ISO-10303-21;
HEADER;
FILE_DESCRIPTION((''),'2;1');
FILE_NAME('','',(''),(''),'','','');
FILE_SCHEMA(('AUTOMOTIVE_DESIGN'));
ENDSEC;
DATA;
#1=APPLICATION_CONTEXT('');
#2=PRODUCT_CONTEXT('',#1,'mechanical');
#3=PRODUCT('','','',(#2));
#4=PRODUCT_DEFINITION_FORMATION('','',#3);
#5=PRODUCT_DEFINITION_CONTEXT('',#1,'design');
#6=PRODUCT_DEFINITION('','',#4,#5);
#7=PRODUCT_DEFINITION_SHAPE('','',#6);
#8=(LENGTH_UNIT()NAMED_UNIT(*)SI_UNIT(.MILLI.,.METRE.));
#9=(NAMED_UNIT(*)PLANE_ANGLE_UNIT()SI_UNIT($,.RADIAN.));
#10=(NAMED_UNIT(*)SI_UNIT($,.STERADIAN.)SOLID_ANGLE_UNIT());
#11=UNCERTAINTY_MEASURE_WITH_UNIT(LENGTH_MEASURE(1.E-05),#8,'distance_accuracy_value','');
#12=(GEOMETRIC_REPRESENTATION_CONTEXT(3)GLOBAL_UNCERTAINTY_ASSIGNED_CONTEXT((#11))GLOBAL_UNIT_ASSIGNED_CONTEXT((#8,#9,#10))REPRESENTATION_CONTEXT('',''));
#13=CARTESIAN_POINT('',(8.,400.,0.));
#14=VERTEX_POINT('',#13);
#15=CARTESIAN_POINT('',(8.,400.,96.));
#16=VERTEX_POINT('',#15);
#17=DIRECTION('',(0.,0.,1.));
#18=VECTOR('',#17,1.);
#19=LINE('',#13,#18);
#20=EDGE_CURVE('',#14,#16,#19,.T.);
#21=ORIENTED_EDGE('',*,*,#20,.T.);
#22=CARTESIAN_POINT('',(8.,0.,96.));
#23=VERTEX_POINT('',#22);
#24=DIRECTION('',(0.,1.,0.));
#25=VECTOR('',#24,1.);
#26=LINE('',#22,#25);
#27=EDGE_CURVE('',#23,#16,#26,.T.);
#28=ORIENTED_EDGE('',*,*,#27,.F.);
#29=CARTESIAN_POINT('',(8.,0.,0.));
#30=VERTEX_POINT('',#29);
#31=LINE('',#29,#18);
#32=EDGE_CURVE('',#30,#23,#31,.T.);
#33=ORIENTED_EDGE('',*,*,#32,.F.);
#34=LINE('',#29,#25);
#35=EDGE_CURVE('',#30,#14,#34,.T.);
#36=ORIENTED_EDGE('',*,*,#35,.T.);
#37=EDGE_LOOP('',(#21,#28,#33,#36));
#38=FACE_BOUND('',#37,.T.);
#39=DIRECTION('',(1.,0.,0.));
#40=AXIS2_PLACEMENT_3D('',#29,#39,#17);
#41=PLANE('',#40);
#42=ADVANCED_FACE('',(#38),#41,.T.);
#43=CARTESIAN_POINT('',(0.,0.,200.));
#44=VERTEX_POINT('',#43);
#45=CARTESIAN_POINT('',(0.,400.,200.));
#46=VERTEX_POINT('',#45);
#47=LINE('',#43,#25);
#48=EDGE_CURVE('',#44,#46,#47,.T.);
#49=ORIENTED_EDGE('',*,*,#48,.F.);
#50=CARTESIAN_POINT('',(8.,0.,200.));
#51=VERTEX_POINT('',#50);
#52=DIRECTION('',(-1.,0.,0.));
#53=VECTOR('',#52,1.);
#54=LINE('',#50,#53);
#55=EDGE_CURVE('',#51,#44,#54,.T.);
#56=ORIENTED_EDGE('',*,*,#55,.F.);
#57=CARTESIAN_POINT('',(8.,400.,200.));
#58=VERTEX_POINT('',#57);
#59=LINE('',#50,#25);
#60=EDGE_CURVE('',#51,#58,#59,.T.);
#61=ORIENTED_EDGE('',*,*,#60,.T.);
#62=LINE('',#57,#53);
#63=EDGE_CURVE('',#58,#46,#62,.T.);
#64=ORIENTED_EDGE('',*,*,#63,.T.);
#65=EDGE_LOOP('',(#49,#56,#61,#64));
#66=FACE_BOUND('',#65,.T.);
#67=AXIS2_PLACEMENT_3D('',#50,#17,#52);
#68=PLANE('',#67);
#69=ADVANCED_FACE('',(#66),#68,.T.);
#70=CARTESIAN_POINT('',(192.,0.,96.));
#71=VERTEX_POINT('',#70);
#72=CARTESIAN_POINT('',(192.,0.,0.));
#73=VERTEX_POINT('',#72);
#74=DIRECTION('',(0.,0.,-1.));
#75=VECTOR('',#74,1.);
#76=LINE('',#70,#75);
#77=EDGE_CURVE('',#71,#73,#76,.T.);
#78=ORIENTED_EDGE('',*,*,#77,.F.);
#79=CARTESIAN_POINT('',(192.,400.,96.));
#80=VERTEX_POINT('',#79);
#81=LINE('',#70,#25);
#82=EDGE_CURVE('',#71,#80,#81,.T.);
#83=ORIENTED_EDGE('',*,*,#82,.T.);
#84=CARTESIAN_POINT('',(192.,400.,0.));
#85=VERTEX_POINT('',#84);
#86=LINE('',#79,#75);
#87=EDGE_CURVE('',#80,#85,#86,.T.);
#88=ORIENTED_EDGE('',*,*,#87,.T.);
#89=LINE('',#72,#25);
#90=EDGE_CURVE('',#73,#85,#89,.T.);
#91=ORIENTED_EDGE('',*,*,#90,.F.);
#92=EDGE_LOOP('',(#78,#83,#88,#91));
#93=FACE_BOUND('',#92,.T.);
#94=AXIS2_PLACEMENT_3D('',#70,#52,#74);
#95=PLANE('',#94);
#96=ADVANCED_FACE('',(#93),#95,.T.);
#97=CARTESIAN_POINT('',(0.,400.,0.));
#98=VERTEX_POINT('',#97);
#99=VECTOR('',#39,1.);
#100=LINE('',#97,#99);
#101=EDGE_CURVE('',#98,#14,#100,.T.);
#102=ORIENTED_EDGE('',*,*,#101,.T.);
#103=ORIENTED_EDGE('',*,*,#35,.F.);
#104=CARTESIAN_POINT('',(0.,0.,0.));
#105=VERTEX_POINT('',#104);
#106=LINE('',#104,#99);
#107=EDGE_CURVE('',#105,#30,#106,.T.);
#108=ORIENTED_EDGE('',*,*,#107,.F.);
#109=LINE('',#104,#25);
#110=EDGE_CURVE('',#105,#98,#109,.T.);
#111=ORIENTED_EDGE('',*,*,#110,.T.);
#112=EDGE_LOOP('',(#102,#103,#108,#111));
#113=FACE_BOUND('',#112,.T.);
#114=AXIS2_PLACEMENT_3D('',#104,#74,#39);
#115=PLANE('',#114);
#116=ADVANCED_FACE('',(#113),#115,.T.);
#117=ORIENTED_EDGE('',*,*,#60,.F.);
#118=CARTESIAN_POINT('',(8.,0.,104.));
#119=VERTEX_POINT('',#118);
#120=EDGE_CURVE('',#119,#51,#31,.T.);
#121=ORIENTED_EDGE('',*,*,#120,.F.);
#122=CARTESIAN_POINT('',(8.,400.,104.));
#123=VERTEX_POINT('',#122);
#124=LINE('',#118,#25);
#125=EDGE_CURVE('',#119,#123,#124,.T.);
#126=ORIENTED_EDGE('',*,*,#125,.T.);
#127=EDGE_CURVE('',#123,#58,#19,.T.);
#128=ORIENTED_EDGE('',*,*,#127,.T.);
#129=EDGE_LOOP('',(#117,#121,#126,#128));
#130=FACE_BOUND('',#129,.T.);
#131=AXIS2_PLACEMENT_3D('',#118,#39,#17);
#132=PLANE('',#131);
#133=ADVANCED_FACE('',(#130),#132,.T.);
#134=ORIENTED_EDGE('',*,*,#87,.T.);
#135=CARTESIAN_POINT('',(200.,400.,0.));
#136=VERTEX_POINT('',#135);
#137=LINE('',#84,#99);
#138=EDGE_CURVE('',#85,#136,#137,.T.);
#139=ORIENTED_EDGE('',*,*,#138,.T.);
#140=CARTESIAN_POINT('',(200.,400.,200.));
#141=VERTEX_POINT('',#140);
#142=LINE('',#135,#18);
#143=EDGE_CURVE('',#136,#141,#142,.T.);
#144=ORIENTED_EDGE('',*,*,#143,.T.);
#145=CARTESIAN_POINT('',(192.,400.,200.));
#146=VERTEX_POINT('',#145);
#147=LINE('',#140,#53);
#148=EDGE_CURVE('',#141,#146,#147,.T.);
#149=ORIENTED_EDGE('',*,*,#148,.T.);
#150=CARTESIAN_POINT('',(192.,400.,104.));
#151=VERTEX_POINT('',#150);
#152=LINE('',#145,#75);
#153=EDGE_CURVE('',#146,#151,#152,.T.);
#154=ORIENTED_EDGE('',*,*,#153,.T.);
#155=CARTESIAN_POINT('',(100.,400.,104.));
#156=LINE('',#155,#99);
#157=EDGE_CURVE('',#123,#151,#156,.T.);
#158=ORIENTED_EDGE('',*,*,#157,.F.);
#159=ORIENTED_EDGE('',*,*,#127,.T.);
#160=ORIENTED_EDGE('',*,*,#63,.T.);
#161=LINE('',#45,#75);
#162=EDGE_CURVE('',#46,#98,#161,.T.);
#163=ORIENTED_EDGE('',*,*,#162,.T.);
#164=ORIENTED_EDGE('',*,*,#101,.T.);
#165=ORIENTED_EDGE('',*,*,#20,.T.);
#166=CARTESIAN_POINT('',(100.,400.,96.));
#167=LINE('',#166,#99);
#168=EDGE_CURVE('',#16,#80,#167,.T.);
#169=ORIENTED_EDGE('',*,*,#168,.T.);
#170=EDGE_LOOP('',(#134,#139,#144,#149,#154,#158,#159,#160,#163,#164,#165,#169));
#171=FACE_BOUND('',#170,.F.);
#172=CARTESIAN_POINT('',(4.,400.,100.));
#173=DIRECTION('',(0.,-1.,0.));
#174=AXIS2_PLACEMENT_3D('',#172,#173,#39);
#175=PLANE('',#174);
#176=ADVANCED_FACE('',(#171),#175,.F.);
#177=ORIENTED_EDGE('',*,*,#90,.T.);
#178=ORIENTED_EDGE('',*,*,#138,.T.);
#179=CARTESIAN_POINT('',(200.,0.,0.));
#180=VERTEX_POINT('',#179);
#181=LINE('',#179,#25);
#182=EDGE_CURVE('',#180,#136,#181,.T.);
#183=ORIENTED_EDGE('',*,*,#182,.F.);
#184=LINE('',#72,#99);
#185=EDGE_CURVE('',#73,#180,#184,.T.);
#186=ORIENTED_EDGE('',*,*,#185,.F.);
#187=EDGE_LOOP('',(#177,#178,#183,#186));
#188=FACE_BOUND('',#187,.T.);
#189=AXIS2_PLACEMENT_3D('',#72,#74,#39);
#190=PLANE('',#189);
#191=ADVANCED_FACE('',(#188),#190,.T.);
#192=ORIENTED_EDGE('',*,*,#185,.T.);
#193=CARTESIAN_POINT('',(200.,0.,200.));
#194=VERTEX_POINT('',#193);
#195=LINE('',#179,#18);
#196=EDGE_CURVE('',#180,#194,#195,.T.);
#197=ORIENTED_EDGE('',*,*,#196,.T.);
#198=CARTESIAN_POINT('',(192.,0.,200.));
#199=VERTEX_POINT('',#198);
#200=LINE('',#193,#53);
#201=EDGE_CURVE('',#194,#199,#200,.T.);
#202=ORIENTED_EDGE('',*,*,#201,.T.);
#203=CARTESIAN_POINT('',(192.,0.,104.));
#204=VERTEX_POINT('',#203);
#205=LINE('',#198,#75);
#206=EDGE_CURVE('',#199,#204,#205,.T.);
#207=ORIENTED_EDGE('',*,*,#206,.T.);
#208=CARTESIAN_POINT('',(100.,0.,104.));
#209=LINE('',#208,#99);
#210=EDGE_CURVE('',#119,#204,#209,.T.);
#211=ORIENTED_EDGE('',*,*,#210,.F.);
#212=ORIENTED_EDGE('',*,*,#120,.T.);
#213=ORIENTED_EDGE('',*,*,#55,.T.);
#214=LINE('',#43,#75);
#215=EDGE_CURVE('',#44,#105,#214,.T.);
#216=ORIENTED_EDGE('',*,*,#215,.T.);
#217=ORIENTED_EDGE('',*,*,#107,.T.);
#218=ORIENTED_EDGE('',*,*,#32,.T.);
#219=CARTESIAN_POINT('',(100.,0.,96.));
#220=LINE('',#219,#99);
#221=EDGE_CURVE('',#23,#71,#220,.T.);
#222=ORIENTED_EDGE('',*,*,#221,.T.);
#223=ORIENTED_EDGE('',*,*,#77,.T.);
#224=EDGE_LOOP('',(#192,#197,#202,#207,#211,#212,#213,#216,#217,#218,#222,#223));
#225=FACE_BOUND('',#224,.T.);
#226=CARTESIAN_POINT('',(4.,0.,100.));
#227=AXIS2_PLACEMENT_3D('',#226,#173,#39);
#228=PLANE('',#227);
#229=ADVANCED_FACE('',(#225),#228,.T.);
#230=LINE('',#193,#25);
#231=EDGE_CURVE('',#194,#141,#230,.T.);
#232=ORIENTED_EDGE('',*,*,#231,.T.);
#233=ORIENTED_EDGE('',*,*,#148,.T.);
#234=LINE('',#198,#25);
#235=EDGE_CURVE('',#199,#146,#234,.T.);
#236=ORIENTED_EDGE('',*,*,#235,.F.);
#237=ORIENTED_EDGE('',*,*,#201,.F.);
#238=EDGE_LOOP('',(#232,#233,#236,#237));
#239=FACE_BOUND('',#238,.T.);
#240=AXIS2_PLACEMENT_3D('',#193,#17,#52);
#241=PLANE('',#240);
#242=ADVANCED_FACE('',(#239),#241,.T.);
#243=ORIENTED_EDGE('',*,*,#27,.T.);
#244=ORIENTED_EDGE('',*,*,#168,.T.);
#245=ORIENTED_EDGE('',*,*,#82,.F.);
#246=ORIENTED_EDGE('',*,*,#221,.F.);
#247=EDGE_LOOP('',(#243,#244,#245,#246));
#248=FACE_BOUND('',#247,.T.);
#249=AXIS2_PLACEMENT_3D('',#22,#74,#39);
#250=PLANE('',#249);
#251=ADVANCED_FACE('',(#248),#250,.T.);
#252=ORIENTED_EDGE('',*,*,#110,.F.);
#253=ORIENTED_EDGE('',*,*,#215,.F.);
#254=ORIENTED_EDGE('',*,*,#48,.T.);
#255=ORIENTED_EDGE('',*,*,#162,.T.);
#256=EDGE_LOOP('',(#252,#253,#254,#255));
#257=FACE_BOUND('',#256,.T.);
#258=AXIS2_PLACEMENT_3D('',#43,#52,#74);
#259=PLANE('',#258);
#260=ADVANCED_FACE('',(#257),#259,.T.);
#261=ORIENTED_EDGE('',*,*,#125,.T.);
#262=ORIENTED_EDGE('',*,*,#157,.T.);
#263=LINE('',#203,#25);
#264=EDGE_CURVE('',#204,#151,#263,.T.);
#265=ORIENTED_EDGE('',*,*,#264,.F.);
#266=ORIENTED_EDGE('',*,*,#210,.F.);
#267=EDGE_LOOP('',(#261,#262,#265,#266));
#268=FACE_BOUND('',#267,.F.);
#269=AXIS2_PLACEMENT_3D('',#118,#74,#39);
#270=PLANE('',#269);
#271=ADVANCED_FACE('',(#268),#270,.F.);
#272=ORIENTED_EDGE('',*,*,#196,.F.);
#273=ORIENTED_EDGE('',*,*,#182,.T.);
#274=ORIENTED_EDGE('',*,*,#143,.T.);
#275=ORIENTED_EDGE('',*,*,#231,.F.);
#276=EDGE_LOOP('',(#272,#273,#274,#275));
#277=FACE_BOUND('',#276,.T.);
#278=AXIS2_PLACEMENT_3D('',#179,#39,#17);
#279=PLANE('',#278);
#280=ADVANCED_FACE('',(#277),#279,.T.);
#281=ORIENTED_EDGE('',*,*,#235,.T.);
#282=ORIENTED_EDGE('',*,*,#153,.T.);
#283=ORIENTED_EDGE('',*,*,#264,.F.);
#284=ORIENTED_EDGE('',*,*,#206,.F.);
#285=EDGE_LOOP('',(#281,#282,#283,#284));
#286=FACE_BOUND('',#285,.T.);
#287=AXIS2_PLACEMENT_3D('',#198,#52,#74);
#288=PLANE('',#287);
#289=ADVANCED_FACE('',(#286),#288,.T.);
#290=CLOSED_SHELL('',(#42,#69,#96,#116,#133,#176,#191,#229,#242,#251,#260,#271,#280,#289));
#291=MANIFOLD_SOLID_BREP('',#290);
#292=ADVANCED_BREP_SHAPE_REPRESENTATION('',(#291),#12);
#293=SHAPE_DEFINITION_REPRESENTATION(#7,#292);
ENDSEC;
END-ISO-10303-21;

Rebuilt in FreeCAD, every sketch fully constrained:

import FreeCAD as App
import Part
import Sketcher


def add_polygon(sketch, points):
    """Adds a closed chain of lines whose ends are joined by coincident constraints."""
    first, n = sketch.GeometryCount, len(points)
    for a, b in zip(points, points[1:] + points[:1]):
        sketch.addGeometry(Part.LineSegment(App.Vector(*a, 0), App.Vector(*b, 0)), False)
    for i in range(n):
        sketch.addConstraint(Sketcher.Constraint("Coincident", first + i, 2, first + (i + 1) % n, 1))

doc = App.newDocument("Part")
body = doc.addObject("PartDesign::Body", "Body")

# Sketch on XZ plane
sketch1 = doc.addObject("Sketcher::SketchObject", "Sketch")
body.addObject(sketch1)
sketch1.AttachmentSupport = (doc.XZ_Plane, [""])
sketch1.MapMode = "FlatFace"
add_polygon(sketch1, [(0, 200), (0, 0), (8, 0), (8, 96), (192, 96), (192, 0), (200, 0), (200, 200), (192, 200), (192, 104), (8, 104), (8, 200)])  # lines 0-11
sketch1.addConstraint([
    Sketcher.Constraint("Vertical", 0),
    Sketcher.Constraint("Horizontal", 1),
    Sketcher.Constraint("Vertical", 2),
    Sketcher.Constraint("Horizontal", 3),
    Sketcher.Constraint("Vertical", 4),
    Sketcher.Constraint("Horizontal", 5),
    Sketcher.Constraint("Vertical", 6),
    Sketcher.Constraint("Horizontal", 7),
    Sketcher.Constraint("Vertical", 8),
    Sketcher.Constraint("Horizontal", 9),
    Sketcher.Constraint("Vertical", 10),
    Sketcher.Constraint("Horizontal", 11),
    Sketcher.Constraint("Coincident", 0, 2, -1, 1),
    Sketcher.Constraint("PointOnObject", 4, 2, -1),
    Sketcher.Constraint("Horizontal", 7, 2, 10, 2),
    Sketcher.Constraint("Vertical", 4, 2, 7, 2),
    Sketcher.Constraint("Vertical", 2, 2, 9, 2),
    Sketcher.Constraint("Equal", 1, 5),
    Sketcher.Constraint("Equal", 4, 8),
    Sketcher.Constraint("DistanceX", 1, 1, 1, 2, 8.0),
    Sketcher.Constraint("DistanceX", 3, 1, 3, 2, 184.0),
    Sketcher.Constraint("DistanceY", 0, 2, 0, 1, 200.0),
    Sketcher.Constraint("DistanceY", 2, 1, 2, 2, 96.0),
])
pad1 = doc.addObject("PartDesign::Pad", "Pad")
body.addObject(pad1)
pad1.Profile = sketch1
pad1.Length = 400
pad1.Reversed = True

doc.recompute()
